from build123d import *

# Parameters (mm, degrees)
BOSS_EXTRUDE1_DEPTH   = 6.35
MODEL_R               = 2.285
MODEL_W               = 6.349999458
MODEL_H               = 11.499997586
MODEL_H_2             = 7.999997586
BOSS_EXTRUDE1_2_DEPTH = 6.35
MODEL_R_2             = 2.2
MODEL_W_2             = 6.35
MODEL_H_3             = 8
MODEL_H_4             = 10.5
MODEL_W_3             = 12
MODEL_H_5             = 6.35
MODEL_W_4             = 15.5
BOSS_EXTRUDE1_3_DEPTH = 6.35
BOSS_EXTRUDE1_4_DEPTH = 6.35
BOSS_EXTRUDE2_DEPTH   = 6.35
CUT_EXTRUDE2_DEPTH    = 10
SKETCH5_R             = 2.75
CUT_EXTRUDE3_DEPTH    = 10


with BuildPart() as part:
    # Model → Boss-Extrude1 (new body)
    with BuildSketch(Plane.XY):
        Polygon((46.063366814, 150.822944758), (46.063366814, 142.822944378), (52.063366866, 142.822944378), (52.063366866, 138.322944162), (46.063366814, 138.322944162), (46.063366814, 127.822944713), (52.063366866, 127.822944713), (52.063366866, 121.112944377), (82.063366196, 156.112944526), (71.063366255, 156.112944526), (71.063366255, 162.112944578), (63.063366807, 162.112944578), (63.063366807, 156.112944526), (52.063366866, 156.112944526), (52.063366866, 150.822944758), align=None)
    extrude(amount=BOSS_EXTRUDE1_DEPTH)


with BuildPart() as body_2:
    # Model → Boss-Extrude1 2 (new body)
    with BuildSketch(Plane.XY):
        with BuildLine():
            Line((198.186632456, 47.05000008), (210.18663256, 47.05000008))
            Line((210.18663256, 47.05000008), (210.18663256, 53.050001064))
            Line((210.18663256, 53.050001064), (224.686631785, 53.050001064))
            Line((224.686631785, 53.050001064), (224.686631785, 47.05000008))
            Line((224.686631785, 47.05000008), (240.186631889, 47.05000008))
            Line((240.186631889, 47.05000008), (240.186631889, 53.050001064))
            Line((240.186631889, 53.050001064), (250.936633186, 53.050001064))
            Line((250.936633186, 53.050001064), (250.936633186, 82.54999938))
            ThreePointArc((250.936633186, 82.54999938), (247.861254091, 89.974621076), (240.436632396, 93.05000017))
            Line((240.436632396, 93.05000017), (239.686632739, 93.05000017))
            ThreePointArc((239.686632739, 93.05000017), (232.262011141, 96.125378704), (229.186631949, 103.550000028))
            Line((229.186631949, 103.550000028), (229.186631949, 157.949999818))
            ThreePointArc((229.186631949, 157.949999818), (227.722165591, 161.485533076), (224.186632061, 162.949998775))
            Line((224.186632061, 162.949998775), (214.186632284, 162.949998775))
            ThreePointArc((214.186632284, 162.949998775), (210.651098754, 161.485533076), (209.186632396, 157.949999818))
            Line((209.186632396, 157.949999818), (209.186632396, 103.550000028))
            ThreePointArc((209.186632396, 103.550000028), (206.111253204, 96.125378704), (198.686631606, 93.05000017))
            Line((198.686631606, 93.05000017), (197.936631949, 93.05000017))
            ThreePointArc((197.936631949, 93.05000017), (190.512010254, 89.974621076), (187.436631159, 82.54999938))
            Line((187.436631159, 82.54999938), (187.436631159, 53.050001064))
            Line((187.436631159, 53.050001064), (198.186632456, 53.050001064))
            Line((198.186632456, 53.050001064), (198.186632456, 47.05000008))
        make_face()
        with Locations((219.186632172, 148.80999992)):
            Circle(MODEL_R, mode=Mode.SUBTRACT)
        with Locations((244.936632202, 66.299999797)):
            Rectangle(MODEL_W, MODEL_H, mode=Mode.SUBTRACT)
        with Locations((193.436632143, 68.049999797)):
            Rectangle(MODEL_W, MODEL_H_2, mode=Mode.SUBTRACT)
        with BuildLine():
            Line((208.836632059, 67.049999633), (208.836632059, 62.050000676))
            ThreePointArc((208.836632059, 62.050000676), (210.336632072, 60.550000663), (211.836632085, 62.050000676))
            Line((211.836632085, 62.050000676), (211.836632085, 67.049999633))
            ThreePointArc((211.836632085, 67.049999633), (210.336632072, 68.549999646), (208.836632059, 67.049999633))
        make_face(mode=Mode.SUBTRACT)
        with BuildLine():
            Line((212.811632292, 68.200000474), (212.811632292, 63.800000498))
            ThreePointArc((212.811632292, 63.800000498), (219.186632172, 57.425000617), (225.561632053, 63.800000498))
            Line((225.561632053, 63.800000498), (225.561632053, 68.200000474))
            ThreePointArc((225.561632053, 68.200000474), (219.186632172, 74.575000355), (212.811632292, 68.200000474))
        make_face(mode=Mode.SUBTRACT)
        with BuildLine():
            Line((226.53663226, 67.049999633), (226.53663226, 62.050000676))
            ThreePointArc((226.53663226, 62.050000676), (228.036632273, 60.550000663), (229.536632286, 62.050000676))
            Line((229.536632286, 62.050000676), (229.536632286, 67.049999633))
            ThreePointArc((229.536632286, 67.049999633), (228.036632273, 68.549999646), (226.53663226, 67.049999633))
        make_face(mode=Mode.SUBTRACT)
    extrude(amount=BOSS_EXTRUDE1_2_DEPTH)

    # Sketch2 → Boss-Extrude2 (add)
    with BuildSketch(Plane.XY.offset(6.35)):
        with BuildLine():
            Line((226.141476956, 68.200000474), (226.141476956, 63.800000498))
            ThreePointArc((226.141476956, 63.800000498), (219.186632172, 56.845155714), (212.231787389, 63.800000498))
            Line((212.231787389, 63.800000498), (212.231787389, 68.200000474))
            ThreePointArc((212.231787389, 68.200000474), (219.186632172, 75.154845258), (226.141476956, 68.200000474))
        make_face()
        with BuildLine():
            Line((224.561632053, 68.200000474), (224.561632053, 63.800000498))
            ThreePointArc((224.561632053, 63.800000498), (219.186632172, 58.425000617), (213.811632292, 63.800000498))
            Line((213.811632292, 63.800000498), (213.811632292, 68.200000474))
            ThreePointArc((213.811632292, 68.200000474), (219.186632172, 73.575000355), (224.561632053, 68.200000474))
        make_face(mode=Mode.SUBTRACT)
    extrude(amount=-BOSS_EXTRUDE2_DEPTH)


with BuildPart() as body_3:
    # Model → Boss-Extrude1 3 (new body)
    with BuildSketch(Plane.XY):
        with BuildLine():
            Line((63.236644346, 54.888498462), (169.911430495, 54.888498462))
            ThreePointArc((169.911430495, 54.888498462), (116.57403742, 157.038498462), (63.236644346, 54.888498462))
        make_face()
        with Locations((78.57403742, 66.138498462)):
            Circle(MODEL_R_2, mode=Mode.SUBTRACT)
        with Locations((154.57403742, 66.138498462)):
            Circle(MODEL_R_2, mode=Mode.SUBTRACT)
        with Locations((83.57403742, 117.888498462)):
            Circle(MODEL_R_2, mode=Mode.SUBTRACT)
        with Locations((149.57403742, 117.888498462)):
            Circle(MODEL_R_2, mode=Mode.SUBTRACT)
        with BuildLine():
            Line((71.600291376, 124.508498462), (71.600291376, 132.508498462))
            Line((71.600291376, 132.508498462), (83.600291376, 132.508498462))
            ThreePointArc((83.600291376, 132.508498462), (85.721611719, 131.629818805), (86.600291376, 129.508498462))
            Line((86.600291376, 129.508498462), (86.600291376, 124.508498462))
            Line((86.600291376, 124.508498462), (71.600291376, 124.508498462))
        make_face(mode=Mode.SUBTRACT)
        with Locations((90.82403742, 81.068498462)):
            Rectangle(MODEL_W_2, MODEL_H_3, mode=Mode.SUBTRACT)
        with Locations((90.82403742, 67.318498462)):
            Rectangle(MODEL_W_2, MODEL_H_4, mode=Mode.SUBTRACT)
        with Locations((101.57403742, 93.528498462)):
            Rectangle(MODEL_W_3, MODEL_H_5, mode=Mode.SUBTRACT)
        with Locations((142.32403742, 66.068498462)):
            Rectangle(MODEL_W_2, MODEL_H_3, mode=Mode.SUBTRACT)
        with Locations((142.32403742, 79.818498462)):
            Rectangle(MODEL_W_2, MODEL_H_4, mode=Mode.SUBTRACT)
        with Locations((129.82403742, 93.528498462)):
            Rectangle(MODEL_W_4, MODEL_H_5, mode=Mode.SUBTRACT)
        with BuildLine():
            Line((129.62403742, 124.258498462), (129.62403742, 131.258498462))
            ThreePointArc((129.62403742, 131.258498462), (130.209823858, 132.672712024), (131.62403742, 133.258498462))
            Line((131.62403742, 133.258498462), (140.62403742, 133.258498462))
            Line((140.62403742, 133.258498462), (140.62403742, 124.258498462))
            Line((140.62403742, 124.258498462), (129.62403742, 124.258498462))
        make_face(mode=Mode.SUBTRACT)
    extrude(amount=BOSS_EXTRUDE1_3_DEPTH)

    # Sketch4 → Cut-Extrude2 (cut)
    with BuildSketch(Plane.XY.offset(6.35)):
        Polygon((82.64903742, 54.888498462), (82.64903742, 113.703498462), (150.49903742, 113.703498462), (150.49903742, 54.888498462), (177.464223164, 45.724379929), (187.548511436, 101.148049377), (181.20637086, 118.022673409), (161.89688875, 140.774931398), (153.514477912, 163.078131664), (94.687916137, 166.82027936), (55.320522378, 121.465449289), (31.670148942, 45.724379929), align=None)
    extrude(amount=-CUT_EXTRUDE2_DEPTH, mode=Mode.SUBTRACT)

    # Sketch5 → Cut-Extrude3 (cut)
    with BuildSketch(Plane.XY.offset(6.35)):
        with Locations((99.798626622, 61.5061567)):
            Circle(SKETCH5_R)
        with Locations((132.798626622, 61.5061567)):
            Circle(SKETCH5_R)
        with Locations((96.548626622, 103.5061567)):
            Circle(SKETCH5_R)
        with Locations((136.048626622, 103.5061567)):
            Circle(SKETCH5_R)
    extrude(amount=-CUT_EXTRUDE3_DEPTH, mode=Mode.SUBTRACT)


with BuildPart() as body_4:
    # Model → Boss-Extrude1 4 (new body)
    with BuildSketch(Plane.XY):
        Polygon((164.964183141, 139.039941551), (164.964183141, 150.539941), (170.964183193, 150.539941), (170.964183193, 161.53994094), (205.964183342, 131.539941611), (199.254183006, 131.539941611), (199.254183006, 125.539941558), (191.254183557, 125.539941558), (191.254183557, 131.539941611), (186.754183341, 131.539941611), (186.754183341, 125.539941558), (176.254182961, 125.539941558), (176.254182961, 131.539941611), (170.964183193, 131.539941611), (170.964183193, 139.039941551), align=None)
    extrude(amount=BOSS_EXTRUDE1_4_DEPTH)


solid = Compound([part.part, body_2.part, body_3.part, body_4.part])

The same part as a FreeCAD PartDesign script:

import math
import FreeCAD as App
import Part
import Sketcher
Q = App.Units.Quantity


def add_polygon(sketch, points):
    """Adds a closed chain of lines whose ends are joined by coincident constraints."""
    first, n = sketch.GeometryCount, len(points)
    for a, b in zip(points, points[1:] + points[:1]):
        sketch.addGeometry(Part.LineSegment(App.Vector(*a, 0), App.Vector(*b, 0)), False)
    for i in range(n):
        sketch.addConstraint(Sketcher.Constraint("Coincident", first + i, 2, first + (i + 1) % n, 1))

doc = App.newDocument("Part")
body = doc.addObject("PartDesign::Body", "Body")

sketch1 = body.newObject("Sketcher::SketchObject", "Sketch")
sketch1.AttachmentSupport = (doc.getObject("XY_Plane"), [""])
sketch1.MapMode = "FlatFace"
add_polygon(sketch1, [(46.1, 150.8), (46.1, 142.8), (52.1, 142.8), (52.1, 138.3), (46.1, 138.3), (46.1, 127.8), (52.1, 127.8), (52.1, 121.1), (82.1, 156.1), (71.1, 156.1), (71.1, 162.1), (63.1, 162.1), (63.1, 156.1), (52.1, 156.1), (52.1, 150.8)])
sketch1.addConstraint(Sketcher.Constraint("Vertical", 0))
sketch1.addConstraint(Sketcher.Constraint("Horizontal", 1))
sketch1.addConstraint(Sketcher.Constraint("Vertical", 2))
sketch1.addConstraint(Sketcher.Constraint("Horizontal", 3))
sketch1.addConstraint(Sketcher.Constraint("Vertical", 4))
sketch1.addConstraint(Sketcher.Constraint("Horizontal", 5))
sketch1.addConstraint(Sketcher.Constraint("Vertical", 6))
sketch1.addConstraint(Sketcher.Constraint("Horizontal", 8))
sketch1.addConstraint(Sketcher.Constraint("Vertical", 9))
sketch1.addConstraint(Sketcher.Constraint("Horizontal", 10))
sketch1.addConstraint(Sketcher.Constraint("Vertical", 11))
sketch1.addConstraint(Sketcher.Constraint("Horizontal", 12))
sketch1.addConstraint(Sketcher.Constraint("Vertical", 13))
sketch1.addConstraint(Sketcher.Constraint("Horizontal", 14))
sketch1.addConstraint(Sketcher.Constraint("Horizontal", 8, 2, 11, 2))
sketch1.addConstraint(Sketcher.Constraint("Vertical", 0, 2, 3, 2))
sketch1.addConstraint(Sketcher.Constraint("Vertical", 2, 2, 5, 2))
sketch1.addConstraint(Sketcher.Constraint("Vertical", 6, 2, 12, 2))
sketch1.addConstraint(Sketcher.Constraint("Equal", 8, 12))
sketch1.addConstraint(Sketcher.Constraint("Equal", 10, 0))
sketch1.addConstraint(Sketcher.Constraint("Equal", 14, 9))
sketch1.addConstraint(Sketcher.Constraint("DistanceX", 1, 1, 1, 2, Q("6 mm")))
sketch1.addConstraint(Sketcher.Constraint("DistanceX", 8, 2, 8, 1, Q("11 mm")))
sketch1.addConstraint(Sketcher.Constraint("DistanceX", 10, 2, 10, 1, Q("7.999999 mm")))
sketch1.addConstraint(Sketcher.Constraint("DistanceY", 2, 2, 2, 1, Q("4.5 mm")))
sketch1.addConstraint(Sketcher.Constraint("DistanceY", 4, 2, 4, 1, Q("10.499999 mm")))
sketch1.addConstraint(Sketcher.Constraint("DistanceY", 6, 2, 6, 1, Q("6.71 mm")))
sketch1.addConstraint(Sketcher.Constraint("DistanceY", 13, 2, 13, 1, Q("5.29 mm")))
sketch1.addConstraint(Sketcher.Constraint("DistanceX", -1, 1, 0, 2, Q("46.063367 mm")))
sketch1.addConstraint(Sketcher.Constraint("DistanceY", -1, 1, 0, 2, Q("142.822944 mm")))
pad1 = body.newObject("PartDesign::Pad", "Pad")
pad1.Profile = sketch1
pad1.Length = 6.35
body2 = doc.addObject("PartDesign::Body", "Body001")

sketch2 = body2.newObject("Sketcher::SketchObject", "Sketch001")
sketch2.AttachmentSupport = (doc.getObject("XY_Plane001"), [""])
sketch2.MapMode = "FlatFace"
sketch2.addGeometry(Part.LineSegment(App.Vector(198.2, 47.1, 0), App.Vector(210.2, 47.1, 0)), False)
sketch2.addGeometry(Part.LineSegment(App.Vector(210.2, 47.1, 0), App.Vector(210.2, 53.1, 0)), False)
sketch2.addGeometry(Part.LineSegment(App.Vector(210.2, 53.1, 0), App.Vector(224.7, 53.1, 0)), False)
sketch2.addGeometry(Part.LineSegment(App.Vector(224.7, 53.1, 0), App.Vector(224.7, 47.1, 0)), False)
sketch2.addGeometry(Part.LineSegment(App.Vector(224.7, 47.1, 0), App.Vector(240.2, 47.1, 0)), False)
sketch2.addGeometry(Part.LineSegment(App.Vector(240.2, 47.1, 0), App.Vector(240.2, 53.1, 0)), False)
sketch2.addGeometry(Part.LineSegment(App.Vector(240.2, 53.1, 0), App.Vector(250.9, 53.1, 0)), False)
sketch2.addGeometry(Part.LineSegment(App.Vector(250.9, 53.1, 0), App.Vector(250.9, 82.5, 0)), False)
sketch2.addGeometry(Part.ArcOfCircle(Part.Circle(App.Vector(240.4, 82.5, 0), App.Vector(0, 0, 1), 10.5), math.radians(0), math.radians(90)), False)
sketch2.addGeometry(Part.LineSegment(App.Vector(240.4, 93.1, 0), App.Vector(239.7, 93.1, 0)), False)
sketch2.addGeometry(Part.ArcOfCircle(Part.Circle(App.Vector(239.7, 103.6, 0), App.Vector(0, 0, 1), 10.5), math.radians(-180), math.radians(-90)), False)
sketch2.addGeometry(Part.LineSegment(App.Vector(229.2, 103.6, 0), App.Vector(229.2, 157.9, 0)), False)
sketch2.addGeometry(Part.ArcOfCircle(Part.Circle(App.Vector(224.2, 157.9, 0), App.Vector(0, 0, 1), 5), math.radians(0), math.radians(90)), False)
sketch2.addGeometry(Part.LineSegment(App.Vector(224.2, 162.9, 0), App.Vector(214.2, 162.9, 0)), False)
sketch2.addGeometry(Part.ArcOfCircle(Part.Circle(App.Vector(214.2, 157.9, 0), App.Vector(0, 0, 1), 5), math.radians(90), math.radians(180)), False)
sketch2.addGeometry(Part.LineSegment(App.Vector(209.2, 157.9, 0), App.Vector(209.2, 103.6, 0)), False)
sketch2.addGeometry(Part.ArcOfCircle(Part.Circle(App.Vector(198.7, 103.6, 0), App.Vector(0, 0, 1), 10.5), math.radians(-90), math.radians(0)), False)
sketch2.addGeometry(Part.LineSegment(App.Vector(198.7, 93.1, 0), App.Vector(197.9, 93.1, 0)), False)
sketch2.addGeometry(Part.ArcOfCircle(Part.Circle(App.Vector(197.9, 82.5, 0), App.Vector(0, 0, 1), 10.5), math.radians(90), math.radians(180)), False)
sketch2.addGeometry(Part.LineSegment(App.Vector(187.4, 82.5, 0), App.Vector(187.4, 53.1, 0)), False)
sketch2.addGeometry(Part.LineSegment(App.Vector(187.4, 53.1, 0), App.Vector(198.2, 53.1, 0)), False)
sketch2.addGeometry(Part.LineSegment(App.Vector(198.2, 53.1, 0), App.Vector(198.2, 47.1, 0)), False)
add_polygon(sketch2, [(196.6, 64.1), (190.3, 64.1), (190.3, 72), (196.6, 72)])
sketch2.addGeometry(Part.LineSegment(App.Vector(208.8, 62.1, 0), App.Vector(208.8, 67, 0)), False)
sketch2.addGeometry(Part.ArcOfCircle(Part.Circle(App.Vector(210.3, 67, 0), App.Vector(0, 0, 1), 1.5), math.radians(0), math.radians(180)), False)
sketch2.addGeometry(Part.LineSegment(App.Vector(211.8, 67, 0), App.Vector(211.8, 62.1, 0)), False)
sketch2.addGeometry(Part.ArcOfCircle(Part.Circle(App.Vector(210.3, 62.1, 0), App.Vector(0, 0, 1), 1.5), math.radians(180), math.radians(360)), False)
sketch2.addGeometry(Part.LineSegment(App.Vector(212.8, 63.8, 0), App.Vector(212.8, 68.2, 0)), False)
sketch2.addGeometry(Part.ArcOfCircle(Part.Circle(App.Vector(219.2, 68.2, 0), App.Vector(0, 0, 1), 6.4), math.radians(0), math.radians(180)), False)
sketch2.addGeometry(Part.LineSegment(App.Vector(225.6, 68.2, 0), App.Vector(225.6, 63.8, 0)), False)
sketch2.addGeometry(Part.ArcOfCircle(Part.Circle(App.Vector(219.2, 63.8, 0), App.Vector(0, 0, 1), 6.4), math.radians(180), math.radians(360)), False)
sketch2.addGeometry(Part.LineSegment(App.Vector(226.5, 62.1, 0), App.Vector(226.5, 67, 0)), False)
sketch2.addGeometry(Part.ArcOfCircle(Part.Circle(App.Vector(228, 67, 0), App.Vector(0, 0, 1), 1.5), math.radians(0), math.radians(180)), False)
sketch2.addGeometry(Part.LineSegment(App.Vector(229.5, 67, 0), App.Vector(229.5, 62.1, 0)), False)
sketch2.addGeometry(Part.ArcOfCircle(Part.Circle(App.Vector(228, 62.1, 0), App.Vector(0, 0, 1), 1.5), math.radians(180), math.radians(360)), False)
add_polygon(sketch2, [(248.1, 60.6), (241.8, 60.6), (241.8, 72), (248.1, 72)])
sketch2.addGeometry(Part.Circle(App.Vector(219.2, 148.8, 0), App.Vector(0, 0, 1), 2.3), False)
sketch2.addConstraint(Sketcher.Constraint("Coincident", 0, 2, 1, 1))
sketch2.addConstraint(Sketcher.Constraint("Coincident", 1, 2, 2, 1))
sketch2.addConstraint(Sketcher.Constraint("Coincident", 2, 2, 3, 1))
sketch2.addConstraint(Sketcher.Constraint("Coincident", 3, 2, 4, 1))
sketch2.addConstraint(Sketcher.Constraint("Coincident", 4, 2, 5, 1))
sketch2.addConstraint(Sketcher.Constraint("Coincident", 5, 2, 6, 1))
sketch2.addConstraint(Sketcher.Constraint("Coincident", 6, 2, 7, 1))
sketch2.addConstraint(Sketcher.Constraint("Tangent", 7, 2, 8, 1))
sketch2.addConstraint(Sketcher.Constraint("Tangent", 8, 2, 9, 1))
sketch2.addConstraint(Sketcher.Constraint("Tangent", 9, 2, 10, 2))
sketch2.addConstraint(Sketcher.Constraint("Tangent", 10, 1, 11, 1))
sketch2.addConstraint(Sketcher.Constraint("Tangent", 11, 2, 12, 1))
sketch2.addConstraint(Sketcher.Constraint("Tangent", 12, 2, 13, 1))
sketch2.addConstraint(Sketcher.Constraint("Tangent", 13, 2, 14, 1))
sketch2.addConstraint(Sketcher.Constraint("Tangent", 14, 2, 15, 1))
sketch2.addConstraint(Sketcher.Constraint("Tangent", 15, 2, 16, 2))
sketch2.addConstraint(Sketcher.Constraint("Tangent", 16, 1, 17, 1))
sketch2.addConstraint(Sketcher.Constraint("Tangent", 17, 2, 18, 1))
sketch2.addConstraint(Sketcher.Constraint("Tangent", 18, 2, 19, 1))
sketch2.addConstraint(Sketcher.Constraint("Coincident", 19, 2, 20, 1))
sketch2.addConstraint(Sketcher.Constraint("Coincident", 20, 2, 21, 1))
sketch2.addConstraint(Sketcher.Constraint("Coincident", 21, 2, 0, 1))
sketch2.addConstraint(Sketcher.Constraint("Tangent", 26, 2, 27, 2))
sketch2.addConstraint(Sketcher.Constraint("Tangent", 27, 1, 28, 1))
sketch2.addConstraint(Sketcher.Constraint("Tangent", 28, 2, 29, 2))
sketch2.addConstraint(Sketcher.Constraint("Tangent", 29, 1, 26, 1))
sketch2.addConstraint(Sketcher.Constraint("Tangent", 30, 2, 31, 2))
sketch2.addConstraint(Sketcher.Constraint("Tangent", 31, 1, 32, 1))
sketch2.addConstraint(Sketcher.Constraint("Tangent", 32, 2, 33, 2))
sketch2.addConstraint(Sketcher.Constraint("Tangent", 33, 1, 30, 1))
sketch2.addConstraint(Sketcher.Constraint("Tangent", 34, 2, 35, 2))
sketch2.addConstraint(Sketcher.Constraint("Tangent", 35, 1, 36, 1))
sketch2.addConstraint(Sketcher.Constraint("Tangent", 36, 2, 37, 2))
sketch2.addConstraint(Sketcher.Constraint("Tangent", 37, 1, 34, 1))
sketch2.addConstraint(Sketcher.Constraint("Horizontal", 0))
sketch2.addConstraint(Sketcher.Constraint("Vertical", 1))
sketch2.addConstraint(Sketcher.Constraint("Horizontal", 2))
sketch2.addConstraint(Sketcher.Constraint("Vertical", 3))
sketch2.addConstraint(Sketcher.Constraint("Horizontal", 4))
sketch2.addConstraint(Sketcher.Constraint("Vertical", 5))
sketch2.addConstraint(Sketcher.Constraint("Horizontal", 6))
sketch2.addConstraint(Sketcher.Constraint("Vertical", 7))
sketch2.addConstraint(Sketcher.Constraint("Horizontal", 9))
sketch2.addConstraint(Sketcher.Constraint("Vertical", 11))
sketch2.addConstraint(Sketcher.Constraint("Horizontal", 13))
sketch2.addConstraint(Sketcher.Constraint("Vertical", 15))
sketch2.addConstraint(Sketcher.Constraint("Horizontal", 17))
sketch2.addConstraint(Sketcher.Constraint("Vertical", 19))
sketch2.addConstraint(Sketcher.Constraint("Horizontal", 20))
sketch2.addConstraint(Sketcher.Constraint("Vertical", 21))
sketch2.addConstraint(Sketcher.Constraint("Horizontal", 22))
sketch2.addConstraint(Sketcher.Constraint("Vertical", 23))
sketch2.addConstraint(Sketcher.Constraint("Horizontal", 24))
sketch2.addConstraint(Sketcher.Constraint("Vertical", 25))
sketch2.addConstraint(Sketcher.Constraint("Vertical", 26))
sketch2.addConstraint(Sketcher.Constraint("Vertical", 28))
sketch2.addConstraint(Sketcher.Constraint("Vertical", 30))
sketch2.addConstraint(Sketcher.Constraint("Vertical", 32))
sketch2.addConstraint(Sketcher.Constraint("Vertical", 34))
sketch2.addConstraint(Sketcher.Constraint("Vertical", 36))
sketch2.addConstraint(Sketcher.Constraint("Horizontal", 38))
sketch2.addConstraint(Sketcher.Constraint("Vertical", 39))
sketch2.addConstraint(Sketcher.Constraint("Horizontal", 40))
sketch2.addConstraint(Sketcher.Constraint("Vertical", 41))
sketch2.addConstraint(Sketcher.Constraint("Equal", 8, 10))
sketch2.addConstraint(Sketcher.Constraint("Equal", 12, 14))
sketch2.addConstraint(Sketcher.Constraint("Equal", 10, 16))
sketch2.addConstraint(Sketcher.Constraint("Equal", 16, 18))
sketch2.addConstraint(Sketcher.Constraint("Equal", 29, 35))
sketch2.addConstraint(Sketcher.Constraint("Horizontal", 10, 3, 16, 3))
sketch2.addConstraint(Sketcher.Constraint("Horizontal", 27, 3, 35, 3))
sketch2.addConstraint(Sketcher.Constraint("Horizontal", 29, 3, 37, 3))
sketch2.addConstraint(Sketcher.Constraint("Horizontal", 0, 2, 3, 2))
sketch2.addConstraint(Sketcher.Constraint("Horizontal", 2, 2, 5, 2))
sketch2.addConstraint(Sketcher.Constraint("Horizontal", 6, 2, 19, 2))
sketch2.addConstraint(Sketcher.Constraint("Horizontal", 24, 2, 39, 2))
sketch2.addConstraint(Sketcher.Constraint("Vertical", 33, 3, 42, 3))
sketch2.addConstraint(Sketcher.Constraint("Equal", 9, 17))
sketch2.addConstraint(Sketcher.Constraint("Equal", 6, 20))
sketch2.addConstraint(Sketcher.Constraint("Equal", 24, 38))
sketch2.addConstraint(Sketcher.Constraint("Radius", 12, Q("5 mm")))
sketch2.addConstraint(Sketcher.Constraint("Radius", 8, Q("10.500001 mm")))
sketch2.addConstraint(Sketcher.Constraint("Radius", 27, Q("1.5 mm")))
sketch2.addConstraint(Sketcher.Constraint("Diameter", 42, Q("4.57 mm")))
sketch2.addConstraint(Sketcher.Constraint("DistanceX", 0, 1, 0, 2, Q("12 mm")))
sketch2.addConstraint(Sketcher.Constraint("DistanceX", 13, 2, 13, 1, Q("10 mm")))
sketch2.addConstraint(Sketcher.Constraint("DistanceY", 1, 1, 1, 2, Q("6.000001 mm")))
sketch2.addConstraint(Sketcher.Constraint("DistanceY", 26, 1, 26, 2, Q("4.999999 mm")))
sketch2.addConstraint(Sketcher.Constraint("DistanceX", 2, 1, 2, 2, Q("14.499999 mm")))
sketch2.addConstraint(Sketcher.Constraint("DistanceX", 4, 1, 4, 2, Q("15.5 mm")))
sketch2.addConstraint(Sketcher.Constraint("DistanceY", 7, 1, 7, 2, Q("29.499998 mm")))
sketch2.addConstraint(Sketcher.Constraint("DistanceY", 11, 1, 11, 2, Q("54.4 mm")))
sketch2.addConstraint(Sketcher.Constraint("DistanceY", 30, 1, 30, 2, Q("4.4 mm")))
sketch2.addConstraint(Sketcher.Constraint("Radius", 31, Q("6.375 mm")))
sketch2.addConstraint(Sketcher.Constraint("DistanceX", 14, 3, 42, 3, Q("5 mm")))
sketch2.addConstraint(Sketcher.Constraint("DistanceY", 0, 2, 29, 3, Q("15.000001 mm")))
sketch2.addConstraint(Sketcher.Constraint("DistanceY", 19, 2, 22, 2, Q("11 mm")))
sketch2.addConstraint(Sketcher.Constraint("DistanceY", 27, 3, 24, 2, Q("4.999999 mm")))
sketch2.addConstraint(Sketcher.Constraint("DistanceX", 6, 1, 6, 2, Q("10.750001 mm")))
sketch2.addConstraint(Sketcher.Constraint("DistanceX", 22, 2, 22, 1, Q("6.349999 mm")))
sketch2.addConstraint(Sketcher.Constraint("DistanceY", -1, 1, 31, 3, Q("68.2 mm")))
sketch2.addConstraint(Sketcher.Constraint("DistanceX", 18, 3, 27, 3, Q("12.4 mm")))
sketch2.addConstraint(Sketcher.Constraint("DistanceX", 27, 3, 35, 3, Q("17.7 mm")))
sketch2.addConstraint(Sketcher.Constraint("DistanceY", 5, 2, 38, 2, Q("7.5 mm")))
sketch2.addConstraint(Sketcher.Constraint("DistanceY", -1, 1, 8, 3, Q("82.549999 mm")))
sketch2.addConstraint(Sketcher.Constraint("DistanceY", -1, 1, 42, 3, Q("148.81 mm")))
sketch2.addConstraint(Sketcher.Constraint("DistanceX", 19, 2, 22, 2, Q("2.825001 mm")))
sketch2.addConstraint(Sketcher.Constraint("DistanceX", 5, 2, 38, 2, Q("1.575001 mm")))
sketch2.addConstraint(Sketcher.Constraint("DistanceX", -1, 1, 2, 2, Q("224.686632 mm")))
pad2 = body2.newObject("PartDesign::Pad", "Pad001")
pad2.Profile = sketch2
pad2.Length = 6.35

sketch3 = body2.newObject("Sketcher::SketchObject", "Sketch002")
sketch3.AttachmentSupport = (doc.getObject("XY_Plane001"), [""])
sketch3.MapMode = "FlatFace"
sketch3.AttachmentOffset = App.Placement(App.Vector(0, 0, 6.35), App.Rotation())
sketch3.addGeometry(Part.LineSegment(App.Vector(226.1, 63.8, 0), App.Vector(226.1, 68.2, 0)), False)
sketch3.addGeometry(Part.ArcOfCircle(Part.Circle(App.Vector(219.2, 68.2, 0), App.Vector(0, 0, 1), 7), math.radians(0), math.radians(180)), False)
sketch3.addGeometry(Part.LineSegment(App.Vector(212.2, 68.2, 0), App.Vector(212.2, 63.8, 0)), False)
sketch3.addGeometry(Part.ArcOfCircle(Part.Circle(App.Vector(219.2, 63.8, 0), App.Vector(0, 0, 1), 7), math.radians(180), math.radians(360)), False)
sketch3.addGeometry(Part.LineSegment(App.Vector(224.6, 68.2, 0), App.Vector(224.6, 63.8, 0)), False)
sketch3.addGeometry(Part.ArcOfCircle(Part.Circle(App.Vector(219.2, 63.8, 0), App.Vector(0, 0, 1), 5.4), math.radians(180), math.radians(360)), False)
sketch3.addGeometry(Part.LineSegment(App.Vector(213.8, 63.8, 0), App.Vector(213.8, 68.2, 0)), False)
sketch3.addGeometry(Part.ArcOfCircle(Part.Circle(App.Vector(219.2, 68.2, 0), App.Vector(0, 0, 1), 5.4), math.radians(0), math.radians(180)), False)
sketch3.addConstraint(Sketcher.Constraint("Tangent", 0, 2, 1, 1))
sketch3.addConstraint(Sketcher.Constraint("Tangent", 1, 2, 2, 1))
sketch3.addConstraint(Sketcher.Constraint("Tangent", 2, 2, 3, 1))
sketch3.addConstraint(Sketcher.Constraint("Tangent", 3, 2, 0, 1))
sketch3.addConstraint(Sketcher.Constraint("Tangent", 4, 2, 5, 2))
sketch3.addConstraint(Sketcher.Constraint("Tangent", 5, 1, 6, 1))
sketch3.addConstraint(Sketcher.Constraint("Tangent", 6, 2, 7, 2))
sketch3.addConstraint(Sketcher.Constraint("Tangent", 7, 1, 4, 1))
sketch3.addConstraint(Sketcher.Constraint("Vertical", 0))
sketch3.addConstraint(Sketcher.Constraint("Vertical", 2))
sketch3.addConstraint(Sketcher.Constraint("Vertical", 4))
sketch3.addConstraint(Sketcher.Constraint("Vertical", 6))
sketch3.addConstraint(Sketcher.Constraint("Coincident", 5, 3, 3, 3))
sketch3.addConstraint(Sketcher.Constraint("Horizontal", 7, 3, 0, 2))
sketch3.addConstraint(Sketcher.Constraint("DistanceY", 0, 1, 0, 2, Q("4.4 mm")))
sketch3.addConstraint(Sketcher.Constraint("Radius", 5, Q("5.375 mm")))
sketch3.addConstraint(Sketcher.Constraint("DistanceY", -1, 1, 1, 3, Q("68.2 mm")))
sketch3.addConstraint(Sketcher.Constraint("Radius", 1, Q("6.954845 mm")))
sketch3.addConstraint(Sketcher.Constraint("DistanceX", -1, 1, 1, 3, Q("219.186632 mm")))
pad3 = body2.newObject("PartDesign::Pad", "Pad002")
pad3.Profile = sketch3
pad3.Length = 6.35
pad3.Reversed = True
body3 = doc.addObject("PartDesign::Body", "Body002")

sketch4 = body3.newObject("Sketcher::SketchObject", "Sketch003")
sketch4.AttachmentSupport = (doc.getObject("XY_Plane002"), [""])
sketch4.MapMode = "FlatFace"
sketch4.addGeometry(Part.LineSegment(App.Vector(63.2, 54.9, 0), App.Vector(169.9, 54.9, 0)), False)
sketch4.addGeometry(Part.ArcOfCircle(Part.Circle(App.Vector(116.6, 92, 0), App.Vector(0, 0, 1), 65), math.radians(-35), math.radians(215)), False)
sketch4.addGeometry(Part.Circle(App.Vector(78.6, 66.1, 0), App.Vector(0, 0, 1), 2.2), False)
add_polygon(sketch4, [(94, 62.1), (87.6, 62.1), (87.6, 72.6), (94, 72.6)])
add_polygon(sketch4, [(94, 77.1), (87.6, 77.1), (87.6, 85.1), (94, 85.1)])
add_polygon(sketch4, [(107.6, 90.4), (95.6, 90.4), (95.6, 96.7), (107.6, 96.7)])
add_polygon(sketch4, [(145.5, 62.1), (139.1, 62.1), (139.1, 70.1), (145.5, 70.1)])
sketch4.addGeometry(Part.Circle(App.Vector(154.6, 66.1, 0), App.Vector(0, 0, 1), 2.2), False)
add_polygon(sketch4, [(145.5, 74.6), (139.1, 74.6), (139.1, 85.1), (145.5, 85.1)])
add_polygon(sketch4, [(137.6, 90.4), (122.1, 90.4), (122.1, 96.7), (137.6, 96.7)])
sketch4.addGeometry(Part.Circle(App.Vector(83.6, 117.9, 0), App.Vector(0, 0, 1), 2.2), False)
sketch4.addGeometry(Part.LineSegment(App.Vector(86.6, 124.5, 0), App.Vector(71.6, 124.5, 0)), False)
sketch4.addGeometry(Part.LineSegment(App.Vector(71.6, 124.5, 0), App.Vector(71.6, 132.5, 0)), False)
sketch4.addGeometry(Part.LineSegment(App.Vector(71.6, 132.5, 0), App.Vector(83.6, 132.5, 0)), False)
sketch4.addGeometry(Part.ArcOfCircle(Part.Circle(App.Vector(83.6, 129.5, 0), App.Vector(0, 0, 1), 3), math.radians(0), math.radians(90)), False)
sketch4.addGeometry(Part.LineSegment(App.Vector(86.6, 129.5, 0), App.Vector(86.6, 124.5, 0)), False)
sketch4.addGeometry(Part.LineSegment(App.Vector(140.6, 124.3, 0), App.Vector(129.6, 124.3, 0)), False)
sketch4.addGeometry(Part.LineSegment(App.Vector(129.6, 124.3, 0), App.Vector(129.6, 131.3, 0)), False)
sketch4.addGeometry(Part.ArcOfCircle(Part.Circle(App.Vector(131.6, 131.3, 0), App.Vector(0, 0, 1), 2), math.radians(90), math.radians(180)), False)
sketch4.addGeometry(Part.LineSegment(App.Vector(131.6, 133.3, 0), App.Vector(140.6, 133.3, 0)), False)
sketch4.addGeometry(Part.LineSegment(App.Vector(140.6, 133.3, 0), App.Vector(140.6, 124.3, 0)), False)
sketch4.addGeometry(Part.Circle(App.Vector(149.6, 117.9, 0), App.Vector(0, 0, 1), 2.2), False)
sketch4.addConstraint(Sketcher.Constraint("Coincident", 0, 1, 1, 2))
sketch4.addConstraint(Sketcher.Constraint("Coincident", 1, 1, 0, 2))
sketch4.addConstraint(Sketcher.Constraint("Coincident", 29, 2, 30, 1))
sketch4.addConstraint(Sketcher.Constraint("Coincident", 30, 2, 31, 1))
sketch4.addConstraint(Sketcher.Constraint("Tangent", 31, 2, 32, 2))
sketch4.addConstraint(Sketcher.Constraint("Tangent", 32, 1, 33, 1))
sketch4.addConstraint(Sketcher.Constraint("Coincident", 33, 2, 29, 1))
sketch4.addConstraint(Sketcher.Constraint("Coincident", 34, 2, 35, 1))
sketch4.addConstraint(Sketcher.Constraint("Tangent", 35, 2, 36, 2))
sketch4.addConstraint(Sketcher.Constraint("Tangent", 36, 1, 37, 1))
sketch4.addConstraint(Sketcher.Constraint("Coincident", 37, 2, 38, 1))
sketch4.addConstraint(Sketcher.Constraint("Coincident", 38, 2, 34, 1))
sketch4.addConstraint(Sketcher.Constraint("Horizontal", 0))
sketch4.addConstraint(Sketcher.Constraint("Horizontal", 3))
sketch4.addConstraint(Sketcher.Constraint("Vertical", 4))
sketch4.addConstraint(Sketcher.Constraint("Horizontal", 5))
sketch4.addConstraint(Sketcher.Constraint("Vertical", 6))
sketch4.addConstraint(Sketcher.Constraint("Horizontal", 7))
sketch4.addConstraint(Sketcher.Constraint("Vertical", 8))
sketch4.addConstraint(Sketcher.Constraint("Horizontal", 9))
sketch4.addConstraint(Sketcher.Constraint("Vertical", 10))
sketch4.addConstraint(Sketcher.Constraint("Horizontal", 11))
sketch4.addConstraint(Sketcher.Constraint("Vertical", 12))
sketch4.addConstraint(Sketcher.Constraint("Horizontal", 13))
sketch4.addConstraint(Sketcher.Constraint("Vertical", 14))
sketch4.addConstraint(Sketcher.Constraint("Horizontal", 15))
sketch4.addConstraint(Sketcher.Constraint("Vertical", 16))
sketch4.addConstraint(Sketcher.Constraint("Horizontal", 17))
sketch4.addConstraint(Sketcher.Constraint("Vertical", 18))
sketch4.addConstraint(Sketcher.Constraint("Horizontal", 20))
sketch4.addConstraint(Sketcher.Constraint("Vertical", 21))
sketch4.addConstraint(Sketcher.Constraint("Horizontal", 22))
sketch4.addConstraint(Sketcher.Constraint("Vertical", 23))
sketch4.addConstraint(Sketcher.Constraint("Horizontal", 24))
sketch4.addConstraint(Sketcher.Constraint("Vertical", 25))
sketch4.addConstraint(Sketcher.Constraint("Horizontal", 26))
sketch4.addConstraint(Sketcher.Constraint("Vertical", 27))
sketch4.addConstraint(Sketcher.Constraint("Horizontal", 29))
sketch4.addConstraint(Sketcher.Constraint("Vertical", 30))
sketch4.addConstraint(Sketcher.Constraint("Horizontal", 31))
sketch4.addConstraint(Sketcher.Constraint("Vertical", 33))
sketch4.addConstraint(Sketcher.Constraint("Horizontal", 34))
sketch4.addConstraint(Sketcher.Constraint("Vertical", 35))
sketch4.addConstraint(Sketcher.Constraint("Horizontal", 37))
sketch4.addConstraint(Sketcher.Constraint("Vertical", 38))
sketch4.addConstraint(Sketcher.Constraint("Equal", 2, 19))
sketch4.addConstraint(Sketcher.Constraint("Equal", 19, 28))
sketch4.addConstraint(Sketcher.Constraint("Equal", 28, 39))
sketch4.addConstraint(Sketcher.Constraint("Horizontal", 2, 3, 19, 3))
sketch4.addConstraint(Sketcher.Constraint("Horizontal", 28, 3, 39, 3))
sketch4.addConstraint(Sketcher.Constraint("Horizontal", 6, 2, 15, 2))
sketch4.addConstraint(Sketcher.Constraint("Horizontal", 9, 2, 21, 2))
sketch4.addConstraint(Sketcher.Constraint("Horizontal", 14, 2, 24, 2))
sketch4.addConstraint(Sketcher.Constraint("Horizontal", 13, 2, 25, 2))
sketch4.addConstraint(Sketcher.Constraint("Vertical", 4, 2, 7, 2))
sketch4.addConstraint(Sketcher.Constraint("Vertical", 6, 2, 9, 2))
sketch4.addConstraint(Sketcher.Constraint("Vertical", 16, 2, 20, 2))
sketch4.addConstraint(Sketcher.Constraint("Vertical", 18, 2, 22, 2))
sketch4.addConstraint(Sketcher.Constraint("Equal", 9, 15))
sketch4.addConstraint(Sketcher.Constraint("Equal", 13, 31))
sketch4.addConstraint(Sketcher.Constraint("Equal", 22, 12))
sketch4.addConstraint(Sketcher.Constraint("Equal", 10, 16))
sketch4.addConstraint(Sketcher.Constraint("Equal", 6, 21))
sketch4.addConstraint(Sketcher.Constraint("Equal", 18, 30))
sketch4.addConstraint(Sketcher.Constraint("Equal", 37, 38))
sketch4.addConstraint(Sketcher.Constraint("Radius", 1, Q("65 mm")))
sketch4.addConstraint(Sketcher.Constraint("Radius", 32, Q("3 mm")))
sketch4.addConstraint(Sketcher.Constraint("Radius", 36, Q("2 mm")))
sketch4.addConstraint(Sketcher.Constraint("Diameter", 2, Q("4.4 mm")))
sketch4.addConstraint(Sketcher.Constraint("DistanceX", 11, 2, 11, 1, Q("12 mm")))
sketch4.addConstraint(Sketcher.Constraint("DistanceX", 34, 2, 34, 1, Q("11 mm")))
sketch4.addConstraint(Sketcher.Constraint("DistanceY", 8, 1, 8, 2, Q("8 mm")))
sketch4.addConstraint(Sketcher.Constraint("DistanceX", 24, 2, 24, 1, Q("15.5 mm")))
sketch4.addConstraint(Sketcher.Constraint("DistanceY", 4, 1, 4, 2, Q("10.5 mm")))
sketch4.addConstraint(Sketcher.Constraint("DistanceX", 2, 3, 1, 3, Q("38 mm")))
sketch4.addConstraint(Sketcher.Constraint("DistanceX", 1, 3, 19, 3, Q("38 mm")))
sketch4.addConstraint(Sketcher.Constraint("DistanceX", 28, 3, 1, 3, Q("33 mm")))
sketch4.addConstraint(Sketcher.Constraint("DistanceX", 1, 3, 39, 3, Q("33 mm")))
sketch4.addConstraint(Sketcher.Constraint("DistanceY", 0, 1, 28, 3, Q("63 mm")))
sketch4.addConstraint(Sketcher.Constraint("DistanceY", 3, 2, 7, 2, Q("15 mm")))
sketch4.addConstraint(Sketcher.Constraint("DistanceX", 13, 2, 1, 3, Q("9 mm")))
sketch4.addConstraint(Sketcher.Constraint("DistanceX", 1, 3, 26, 2, Q("21 mm")))
sketch4.addConstraint(Sketcher.Constraint("DistanceX", 3, 2, 3, 1, Q("6.35 mm")))
sketch4.addConstraint(Sketcher.Constraint("DistanceY", 2, 3, 1, 3, Q("25.9 mm")))
sketch4.addConstraint(Sketcher.Constraint("DistanceY", 1, 3, 28, 3, Q("25.85 mm")))
sketch4.addConstraint(Sketcher.Constraint("DistanceY", 28, 3, 32, 3, Q("11.62 mm")))
sketch4.addConstraint(Sketcher.Constraint("DistanceX", 1, 3, 36, 3, Q("15.05 mm")))
sketch4.addConstraint(Sketcher.Constraint("DistanceY", 1, 3, 36, 3, Q("39.22 mm")))
sketch4.addConstraint(Sketcher.Constraint("DistanceY", 3, 2, 2, 3, Q("4.07 mm")))
sketch4.addConstraint(Sketcher.Constraint("DistanceX", 6, 2, 15, 2, Q("45.15 mm")))
sketch4.addConstraint(Sketcher.Constraint("DistanceX", 2, 3, 3, 2, Q("9.075 mm")))
sketch4.addConstraint(Sketcher.Constraint("DistanceY", 9, 2, 11, 2, Q("5.285 mm")))
sketch4.addConstraint(Sketcher.Constraint("DistanceY", -1, 1, 1, 3, Q("92.038498 mm")))
sketch4.addConstraint(Sketcher.Constraint("DistanceX", -1, 1, 32, 3, Q("83.600291 mm")))
sketch4.addConstraint(Sketcher.Constraint("DistanceX", -1, 1, 1, 1, Q("169.91143 mm")))
pad4 = body3.newObject("PartDesign::Pad", "Pad003")
pad4.Profile = sketch4
pad4.Length = 6.35

sketch5 = body3.newObject("Sketcher::SketchObject", "Sketch004")
sketch5.AttachmentSupport = (doc.getObject("XY_Plane002"), [""])
sketch5.MapMode = "FlatFace"
sketch5.AttachmentOffset = App.Placement(App.Vector(0, 0, 6.35), App.Rotation())
add_polygon(sketch5, [(83, 55), (83, 114), (150, 114), (150, 55), (177, 46), (188, 101), (181, 118), (162, 141), (154, 163), (95, 167), (55, 121), (32, 46)])
sketch5.addConstraint(Sketcher.Constraint("Vertical", 0))
sketch5.addConstraint(Sketcher.Constraint("Horizontal", 1))
sketch5.addConstraint(Sketcher.Constraint("Vertical", 2))
sketch5.addConstraint(Sketcher.Constraint("Parallel", 5, 7))
sketch5.addConstraint(Sketcher.Constraint("Horizontal", 3, 2, 10, 2))
sketch5.addConstraint(Sketcher.Constraint("Horizontal", 2, 2, 11, 2))
sketch5.addConstraint(Sketcher.Constraint("DistanceX", 1, 1, 1, 2, Q("67.85 mm")))
sketch5.addConstraint(Sketcher.Constraint("DistanceY", 0, 1, 0, 2, Q("58.815 mm")))
sketch5.addConstraint(Sketcher.Constraint("DistanceY", -1, 1, 0, 2, Q("113.703498 mm")))
sketch5.addConstraint(Sketcher.Constraint("DistanceY", 6, 2, 7, 2, Q("22.3032 mm")))
sketch5.addConstraint(Sketcher.Constraint("DistanceY", 10, 2, 8, 2, Q("121.095899 mm")))
sketch5.addConstraint(Sketcher.Constraint("Distance", 5, Q("18.027082 mm")))
sketch5.addConstraint(Sketcher.Constraint("Distance", 10, Q("79.347651 mm")))
sketch5.addConstraint(Sketcher.Constraint("DistanceY", -1, 1, 3, 2, Q("45.72438 mm")))
sketch5.addConstraint(Sketcher.Constraint("DistanceX", -1, 1, 4, 2, Q("187.548511 mm")))
sketch5.addConstraint(Sketcher.Constraint("DistanceY", -1, 1, 4, 2, Q("101.148049 mm")))
sketch5.addConstraint(Sketcher.Constraint("DistanceX", -1, 1, 5, 2, Q("181.206371 mm")))
sketch5.addConstraint(Sketcher.Constraint("DistanceX", -1, 1, 6, 2, Q("161.896889 mm")))
sketch5.addConstraint(Sketcher.Constraint("DistanceY", -1, 1, 6, 2, Q("140.774931 mm")))
sketch5.addConstraint(Sketcher.Constraint("DistanceY", -1, 1, 9, 2, Q("121.465449 mm")))
sketch5.addConstraint(Sketcher.Constraint("DistanceX", -1, 1, 10, 2, Q("31.670149 mm")))
sketch5.addConstraint(Sketcher.Constraint("DistanceX", 3, 2, 4, 2, Q("10.084288 mm")))
sketch5.addConstraint(Sketcher.Constraint("DistanceX", 1, 2, 6, 2, Q("11.397851 mm")))
sketch5.addConstraint(Sketcher.Constraint("DistanceX", 0, 2, 8, 2, Q("12.038879 mm")))
pocket1 = body3.newObject("PartDesign::Pocket", "Pocket")
pocket1.Profile = sketch5
pocket1.Length = 10

sketch6 = body3.newObject("Sketcher::SketchObject", "Sketch005")
sketch6.AttachmentSupport = (doc.getObject("XY_Plane002"), [""])
sketch6.MapMode = "FlatFace"
sketch6.AttachmentOffset = App.Placement(App.Vector(0, 0, 6.35), App.Rotation())
sketch6.addGeometry(Part.Circle(App.Vector(99.8, 61.5, 0), App.Vector(0, 0, 1), 2.8), False)
sketch6.addGeometry(Part.Circle(App.Vector(132.8, 61.5, 0), App.Vector(0, 0, 1), 2.8), False)
sketch6.addGeometry(Part.Circle(App.Vector(96.5, 103.5, 0), App.Vector(0, 0, 1), 2.8), False)
sketch6.addGeometry(Part.Circle(App.Vector(136, 103.5, 0), App.Vector(0, 0, 1), 2.8), False)
sketch6.addConstraint(Sketcher.Constraint("Equal", 0, 1))
sketch6.addConstraint(Sketcher.Constraint("Equal", 1, 2))
sketch6.addConstraint(Sketcher.Constraint("Equal", 2, 3))
sketch6.addConstraint(Sketcher.Constraint("Horizontal", 0, 3, 1, 3))
sketch6.addConstraint(Sketcher.Constraint("Horizontal", 2, 3, 3, 3))
sketch6.addConstraint(Sketcher.Constraint("Diameter", 0, Q("5.5 mm")))
sketch6.addConstraint(Sketcher.Constraint("DistanceX", 0, 3, 1, 3, Q("33 mm")))
sketch6.addConstraint(Sketcher.Constraint("DistanceY", 0, 3, 2, 3, Q("42 mm")))
sketch6.addConstraint(Sketcher.Constraint("DistanceX", 2, 3, 3, 3, Q("39.5 mm")))
sketch6.addConstraint(Sketcher.Constraint("DistanceX", 2, 3, 0, 3, Q("3.25 mm")))
sketch6.addConstraint(Sketcher.Constraint("DistanceX", -1, 1, 0, 3, Q("99.798627 mm")))
sketch6.addConstraint(Sketcher.Constraint("DistanceY", -1, 1, 0, 3, Q("61.506157 mm")))
pocket2 = body3.newObject("PartDesign::Pocket", "Pocket001")
pocket2.Profile = sketch6
pocket2.Length = 10
body4 = doc.addObject("PartDesign::Body", "Body003")

sketch7 = body4.newObject("Sketcher::SketchObject", "Sketch006")
sketch7.AttachmentSupport = (doc.getObject("XY_Plane003"), [""])
sketch7.MapMode = "FlatFace"
add_polygon(sketch7, [(165, 150.5), (165, 139), (171, 139), (171, 131.5), (176.3, 131.5), (176.3, 125.5), (186.8, 125.5), (186.8, 131.5), (191.3, 131.5), (191.3, 125.5), (199.3, 125.5), (199.3, 131.5), (206, 131.5), (171, 161.5), (171, 150.5)])
sketch7.addConstraint(Sketcher.Constraint("Vertical", 0))
sketch7.addConstraint(Sketcher.Constraint("Horizontal", 1))
sketch7.addConstraint(Sketcher.Constraint("Vertical", 2))
sketch7.addConstraint(Sketcher.Constraint("Horizontal", 3))
sketch7.addConstraint(Sketcher.Constraint("Vertical", 4))
sketch7.addConstraint(Sketcher.Constraint("Horizontal", 5))
sketch7.addConstraint(Sketcher.Constraint("Vertical", 6))
sketch7.addConstraint(Sketcher.Constraint("Horizontal", 7))
sketch7.addConstraint(Sketcher.Constraint("Vertical", 8))
sketch7.addConstraint(Sketcher.Constraint("Horizontal", 9))
sketch7.addConstraint(Sketcher.Constraint("Vertical", 10))
sketch7.addConstraint(Sketcher.Constraint("Horizontal", 11))
sketch7.addConstraint(Sketcher.Constraint("Vertical", 13))
sketch7.addConstraint(Sketcher.Constraint("Horizontal", 14))
sketch7.addConstraint(Sketcher.Constraint("Horizontal", 3, 2, 6, 2))
sketch7.addConstraint(Sketcher.Constraint("Horizontal", 5, 2, 8, 2))
sketch7.addConstraint(Sketcher.Constraint("Horizontal", 7, 2, 10, 2))
sketch7.addConstraint(Sketcher.Constraint("Vertical", 2, 2, 12, 2))
sketch7.addConstraint(Sketcher.Constraint("Equal", 14, 4))
sketch7.addConstraint(Sketcher.Constraint("DistanceX", 1, 1, 1, 2, Q("6 mm")))
sketch7.addConstraint(Sketcher.Constraint("DistanceX", 9, 1, 9, 2, Q("7.999999 mm")))
sketch7.addConstraint(Sketcher.Constraint("DistanceY", 13, 2, 13, 1, Q("11 mm")))
sketch7.addConstraint(Sketcher.Constraint("DistanceX", 5, 1, 5, 2, Q("10.5 mm")))
sketch7.addConstraint(Sketcher.Constraint("DistanceX", 7, 1, 7, 2, Q("4.5 mm")))
sketch7.addConstraint(Sketcher.Constraint("DistanceY", 0, 2, 0, 1, Q("11.499999 mm")))
sketch7.addConstraint(Sketcher.Constraint("DistanceY", 2, 2, 2, 1, Q("7.5 mm")))
sketch7.addConstraint(Sketcher.Constraint("DistanceX", 3, 1, 3, 2, Q("5.29 mm")))
sketch7.addConstraint(Sketcher.Constraint("DistanceX", 11, 1, 11, 2, Q("6.71 mm")))
sketch7.addConstraint(Sketcher.Constraint("DistanceY", -1, 1, 0, 2, Q("139.039942 mm")))
sketch7.addConstraint(Sketcher.Constraint("DistanceX", -1, 1, 0, 2, Q("164.964183 mm")))
pad5 = body4.newObject("PartDesign::Pad", "Pad004")
pad5.Profile = sketch7
pad5.Length = 6.35

doc.recompute()
